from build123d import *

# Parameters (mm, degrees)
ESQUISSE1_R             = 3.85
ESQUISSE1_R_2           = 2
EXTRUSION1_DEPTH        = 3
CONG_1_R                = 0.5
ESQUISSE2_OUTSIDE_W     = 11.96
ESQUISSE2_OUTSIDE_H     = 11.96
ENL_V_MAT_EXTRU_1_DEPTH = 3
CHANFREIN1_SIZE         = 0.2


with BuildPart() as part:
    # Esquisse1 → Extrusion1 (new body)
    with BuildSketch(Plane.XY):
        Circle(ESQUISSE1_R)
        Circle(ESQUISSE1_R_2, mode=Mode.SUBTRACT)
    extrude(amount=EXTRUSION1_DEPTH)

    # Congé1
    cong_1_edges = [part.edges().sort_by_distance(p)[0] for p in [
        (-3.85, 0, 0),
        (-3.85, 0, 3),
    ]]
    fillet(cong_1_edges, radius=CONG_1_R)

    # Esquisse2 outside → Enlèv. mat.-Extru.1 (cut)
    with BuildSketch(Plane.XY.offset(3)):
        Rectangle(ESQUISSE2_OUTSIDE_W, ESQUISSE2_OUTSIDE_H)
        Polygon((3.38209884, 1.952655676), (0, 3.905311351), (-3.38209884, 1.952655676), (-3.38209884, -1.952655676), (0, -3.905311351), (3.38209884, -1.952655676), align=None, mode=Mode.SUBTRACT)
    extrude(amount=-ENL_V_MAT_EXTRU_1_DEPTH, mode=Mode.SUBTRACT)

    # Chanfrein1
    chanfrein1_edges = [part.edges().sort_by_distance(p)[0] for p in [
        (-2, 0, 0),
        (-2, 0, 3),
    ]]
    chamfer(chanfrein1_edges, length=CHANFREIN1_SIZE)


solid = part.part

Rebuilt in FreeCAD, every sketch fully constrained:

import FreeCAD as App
import Part
import Sketcher
Q = App.Units.Quantity


def edges_at(feature, points):
    """Names of the edges that pass closest to the given points."""
    edges = feature.Shape.Edges
    near = lambda p: min(range(len(edges)), key=lambda i: edges[i].distToShape(Part.Vertex(*p))[0])
    return sorted({f"Edge{near(p) + 1}" for p in points})


def add_polygon(sketch, points):
    """Adds a closed chain of lines whose ends are joined by coincident constraints."""
    first, n = sketch.GeometryCount, len(points)
    for a, b in zip(points, points[1:] + points[:1]):
        sketch.addGeometry(Part.LineSegment(App.Vector(*a, 0), App.Vector(*b, 0)), False)
    for i in range(n):
        sketch.addConstraint(Sketcher.Constraint("Coincident", first + i, 2, first + (i + 1) % n, 1))

doc = App.newDocument("Part")
body = doc.addObject("PartDesign::Body", "Body")

# Sketch on XY plane
sketch1 = doc.addObject("Sketcher::SketchObject", "Sketch")
body.addObject(sketch1)
sketch1.AttachmentSupport = (doc.XY_Plane, [""])
sketch1.MapMode = "FlatFace"
sketch1.addGeometry([
    Part.Circle(App.Vector(0, 0, 0), App.Vector(0, 0, 1), 3.9),
    Part.Circle(App.Vector(0, 0, 0), App.Vector(0, 0, 1), 2),
], False)
sketch1.addConstraint([
    Sketcher.Constraint("Coincident", 0, 3, -1, 1),
    Sketcher.Constraint("Coincident", 1, 3, -1, 1),
    Sketcher.Constraint("Diameter", 1, Q("4 mm")),
    Sketcher.Constraint("Diameter", 0, Q("7.7 mm")),
])
pad1 = doc.addObject("PartDesign::Pad", "Pad")
body.addObject(pad1)
pad1.Profile = sketch1
pad1.Length = 3
doc.recompute()

fillet = doc.addObject("PartDesign::Fillet", "Fillet")
body.addObject(fillet)
fillet.Base = (pad1, edges_at(pad1, [(-3.85, 0, 0), (-3.85, 0, 3)]))
fillet.Radius = 0.5

# Sketch on XY plane
sketch2 = doc.addObject("Sketcher::SketchObject", "Sketch001")
body.addObject(sketch2)
sketch2.AttachmentSupport = (doc.XY_Plane, [""])
sketch2.MapMode = "FlatFace"
sketch2.AttachmentOffset = App.Placement(App.Vector(0, 0, 3), App.Rotation())
add_polygon(sketch2, [(-6, 6), (-6, -6), (6, -6), (6, 6)])  # lines 0-3
add_polygon(sketch2, [(0, 3.9), (3.4, 2), (3.4, -2), (0, -3.9), (-3.4, -2), (-3.4, 2)])  # lines 4-9
sketch2.addConstraint([
    Sketcher.Constraint("Vertical", 0),
    Sketcher.Constraint("Horizontal", 1),
    Sketcher.Constraint("Vertical", 2),
    Sketcher.Constraint("Horizontal", 3),
    Sketcher.Constraint("Vertical", 5),
    Sketcher.Constraint("Vertical", 8),
    Sketcher.Constraint("Symmetric", 0, 2, 2, 2, -1, 1),
    Sketcher.Constraint("Symmetric", 4, 2, 7, 2, -1, 1),
    Sketcher.Constraint("Symmetric", 6, 2, 9, 2, -1, 1),
    Sketcher.Constraint("PointOnObject", 6, 2, -2),
    Sketcher.Constraint("Parallel", 6, 9),
    Sketcher.Constraint("Horizontal", 5, 2, 7, 2),
    Sketcher.Constraint("Equal", 3, 0),
    Sketcher.Constraint("Angle", 4, Q("-30 deg")),
    Sketcher.Constraint("DistanceX", 1, 1, 1, 2, Q("11.96 mm")),
    Sketcher.Constraint("DistanceY", 5, 2, 5, 1, Q("3.905311 mm")),
    Sketcher.Constraint("DistanceX", -1, 1, 4, 2, Q("3.382099 mm")),
])
pocket1 = doc.addObject("PartDesign::Pocket", "Pocket")
body.addObject(pocket1)
pocket1.Profile = sketch2
pocket1.Length = 3
doc.recompute()

chamfer = doc.addObject("PartDesign::Chamfer", "Chamfer")
body.addObject(chamfer)
chamfer.Base = (pocket1, edges_at(pocket1, [(-2, 0, 0), (-2, 0, 3)]))
chamfer.Size = 0.2

doc.recompute()
